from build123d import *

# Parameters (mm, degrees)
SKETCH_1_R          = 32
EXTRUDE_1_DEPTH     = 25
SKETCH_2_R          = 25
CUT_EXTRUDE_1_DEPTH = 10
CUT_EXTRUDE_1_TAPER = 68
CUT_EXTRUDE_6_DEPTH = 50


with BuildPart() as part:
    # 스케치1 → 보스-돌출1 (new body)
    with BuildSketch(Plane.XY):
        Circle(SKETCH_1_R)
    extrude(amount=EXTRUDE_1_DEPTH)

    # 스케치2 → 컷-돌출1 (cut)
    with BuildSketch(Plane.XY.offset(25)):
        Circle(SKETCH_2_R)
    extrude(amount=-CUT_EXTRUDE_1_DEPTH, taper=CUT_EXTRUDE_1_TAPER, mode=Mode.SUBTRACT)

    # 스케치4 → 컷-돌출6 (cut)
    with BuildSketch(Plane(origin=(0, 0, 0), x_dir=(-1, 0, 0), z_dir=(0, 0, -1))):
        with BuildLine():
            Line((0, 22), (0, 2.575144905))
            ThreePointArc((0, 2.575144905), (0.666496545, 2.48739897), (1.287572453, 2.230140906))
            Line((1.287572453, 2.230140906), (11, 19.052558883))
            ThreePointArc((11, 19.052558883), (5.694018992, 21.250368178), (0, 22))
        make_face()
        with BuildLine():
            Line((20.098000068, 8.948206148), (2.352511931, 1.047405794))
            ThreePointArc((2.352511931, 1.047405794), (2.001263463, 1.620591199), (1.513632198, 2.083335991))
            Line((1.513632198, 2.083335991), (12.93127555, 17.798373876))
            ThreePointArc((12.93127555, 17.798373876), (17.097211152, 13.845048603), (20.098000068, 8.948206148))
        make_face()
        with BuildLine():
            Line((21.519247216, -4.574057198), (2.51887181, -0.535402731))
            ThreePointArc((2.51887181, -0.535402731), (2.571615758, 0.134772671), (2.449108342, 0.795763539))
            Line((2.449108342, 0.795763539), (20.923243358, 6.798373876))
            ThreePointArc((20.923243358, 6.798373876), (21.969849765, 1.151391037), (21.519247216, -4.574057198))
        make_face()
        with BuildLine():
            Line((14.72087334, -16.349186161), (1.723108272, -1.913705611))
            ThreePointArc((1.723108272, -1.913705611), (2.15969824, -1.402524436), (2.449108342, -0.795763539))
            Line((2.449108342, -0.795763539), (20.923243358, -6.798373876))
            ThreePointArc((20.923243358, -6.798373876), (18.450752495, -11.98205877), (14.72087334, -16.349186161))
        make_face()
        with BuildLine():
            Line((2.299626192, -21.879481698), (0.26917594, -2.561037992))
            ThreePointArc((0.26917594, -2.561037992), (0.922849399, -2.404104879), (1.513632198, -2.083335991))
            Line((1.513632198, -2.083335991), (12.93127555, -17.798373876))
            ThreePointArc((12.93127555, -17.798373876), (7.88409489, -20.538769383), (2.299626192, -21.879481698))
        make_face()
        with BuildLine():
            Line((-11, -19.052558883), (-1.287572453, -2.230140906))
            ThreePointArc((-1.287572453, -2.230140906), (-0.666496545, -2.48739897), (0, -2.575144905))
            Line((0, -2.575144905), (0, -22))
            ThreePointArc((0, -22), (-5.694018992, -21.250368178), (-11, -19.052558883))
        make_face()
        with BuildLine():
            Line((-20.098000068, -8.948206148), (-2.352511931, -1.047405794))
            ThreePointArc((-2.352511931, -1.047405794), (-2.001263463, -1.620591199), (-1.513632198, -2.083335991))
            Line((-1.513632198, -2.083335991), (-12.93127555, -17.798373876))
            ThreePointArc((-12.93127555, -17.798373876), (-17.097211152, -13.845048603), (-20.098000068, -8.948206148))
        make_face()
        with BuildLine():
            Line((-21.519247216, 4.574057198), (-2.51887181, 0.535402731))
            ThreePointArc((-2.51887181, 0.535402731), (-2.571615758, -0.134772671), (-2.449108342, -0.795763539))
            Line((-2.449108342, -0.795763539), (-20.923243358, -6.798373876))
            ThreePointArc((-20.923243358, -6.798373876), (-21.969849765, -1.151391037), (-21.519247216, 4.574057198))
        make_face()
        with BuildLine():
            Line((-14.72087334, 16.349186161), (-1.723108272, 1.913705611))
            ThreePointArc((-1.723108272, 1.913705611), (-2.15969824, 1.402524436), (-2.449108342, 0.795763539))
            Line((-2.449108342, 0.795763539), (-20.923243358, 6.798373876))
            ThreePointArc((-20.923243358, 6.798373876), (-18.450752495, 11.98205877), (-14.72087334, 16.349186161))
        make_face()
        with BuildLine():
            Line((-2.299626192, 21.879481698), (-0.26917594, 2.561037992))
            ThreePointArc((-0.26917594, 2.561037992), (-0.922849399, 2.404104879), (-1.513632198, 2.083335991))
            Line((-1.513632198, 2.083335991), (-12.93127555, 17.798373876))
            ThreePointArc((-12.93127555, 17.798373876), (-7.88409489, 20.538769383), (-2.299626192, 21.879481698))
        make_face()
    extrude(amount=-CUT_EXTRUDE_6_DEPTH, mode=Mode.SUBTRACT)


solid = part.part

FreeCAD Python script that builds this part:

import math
import FreeCAD as App
import Part
import Sketcher

V = App.Vector
Q = App.Units.Quantity

doc = App.newDocument("Part")
body = doc.addObject("PartDesign::Body", "Body")

sketch1 = body.newObject("Sketcher::SketchObject", "Sketch")
sketch1.AttachmentSupport = (doc.getObject("XY_Plane"), [""])
sketch1.MapMode = "FlatFace"
sketch1.addGeometry(Part.Circle(V(0, 0, 0), V(0, 0, 1), 32), False)
sketch1.addConstraint(Sketcher.Constraint("Coincident", 0, 3, -1, 1))
sketch1.addConstraint(Sketcher.Constraint("Diameter", 0, Q("64 mm")))
pad1 = body.newObject("PartDesign::Pad", "Pad")
pad1.Profile = sketch1
pad1.Length = 25

sketch2 = body.newObject("Sketcher::SketchObject", "Sketch001")
sketch2.AttachmentSupport = (doc.getObject("XY_Plane"), [""])
sketch2.MapMode = "FlatFace"
sketch2.AttachmentOffset = App.Placement(V(0, 0, 25), App.Rotation())
sketch2.addGeometry(Part.Circle(V(0, 0, 0), V(0, 0, 1), 25), False)
sketch2.addConstraint(Sketcher.Constraint("Coincident", 0, 3, -1, 1))
sketch2.addConstraint(Sketcher.Constraint("Diameter", 0, Q("50 mm")))
pocket1 = body.newObject("PartDesign::Pocket", "Pocket")
pocket1.Profile = sketch2
pocket1.Length = 10
pocket1.TaperAngle = -68

sketch3 = body.newObject("Sketcher::SketchObject", "Sketch002")
sketch3.AttachmentSupport = (doc.getObject("XY_Plane"), [""])
sketch3.MapMode = "FlatFace"
sketch3.addGeometry(Part.LineSegment(V(0, 22, 0), V(0, 2.6, 0)), False)
sketch3.addGeometry(Part.ArcOfCircle(Part.Circle(V(0, 0, 0), V(0, 0, 1), 2.6), math.radians(90), math.radians(120)), False)
sketch3.addGeometry(Part.LineSegment(V(-1.3, 2.2, 0), V(-11, 19.1, 0)), False)
sketch3.addGeometry(Part.ArcOfCircle(Part.Circle(V(0, 0, 0), V(0, 0, 1), 22), math.radians(90), math.radians(120)), False)
sketch3.addGeometry(Part.LineSegment(V(-2.4, 1, 0), V(-20.1, 8.9, 0)), False)
sketch3.addGeometry(Part.ArcOfCircle(Part.Circle(V(0, 0, 0), V(0, 0, 1), 22), math.radians(126), math.radians(156)), False)
sketch3.addGeometry(Part.LineSegment(V(-12.9, 17.8, 0), V(-1.5, 2.1, 0)), False)
sketch3.addGeometry(Part.ArcOfCircle(Part.Circle(V(0, 0, 0), V(0, 0, 1), 2.6), math.radians(126), math.radians(156)), False)
sketch3.addGeometry(Part.LineSegment(V(-2.5, -0.5, 0), V(-21.5, -4.6, 0)), False)
sketch3.addGeometry(Part.ArcOfCircle(Part.Circle(V(0, 0, 0), V(0, 0, 1), 22), math.radians(162), math.radians(192)), False)
sketch3.addGeometry(Part.LineSegment(V(-20.9, 6.8, 0), V(-2.4, 0.8, 0)), False)
sketch3.addGeometry(Part.ArcOfCircle(Part.Circle(V(0, 0, 0), V(0, 0, 1), 2.6), math.radians(162), math.radians(192)), False)
sketch3.addGeometry(Part.LineSegment(V(-1.7, -1.9, 0), V(-14.7, -16.3, 0)), False)
sketch3.addGeometry(Part.ArcOfCircle(Part.Circle(V(0, 0, 0), V(0, 0, 1), 22), math.radians(-162), math.radians(-132)), False)
sketch3.addGeometry(Part.LineSegment(V(-20.9, -6.8, 0), V(-2.4, -0.8, 0)), False)
sketch3.addGeometry(Part.ArcOfCircle(Part.Circle(V(0, 0, 0), V(0, 0, 1), 2.6), math.radians(-162), math.radians(-132)), False)
sketch3.addGeometry(Part.LineSegment(V(-0.3, -2.6, 0), V(-2.3, -21.9, 0)), False)
sketch3.addGeometry(Part.ArcOfCircle(Part.Circle(V(0, 0, 0), V(0, 0, 1), 22), math.radians(-126), math.radians(-96)), False)
sketch3.addGeometry(Part.LineSegment(V(-12.9, -17.8, 0), V(-1.5, -2.1, 0)), False)
sketch3.addGeometry(Part.ArcOfCircle(Part.Circle(V(0, 0, 0), V(0, 0, 1), 2.6), math.radians(-126), math.radians(-96)), False)
sketch3.addGeometry(Part.LineSegment(V(1.3, -2.2, 0), V(11, -19.1, 0)), False)
sketch3.addGeometry(Part.ArcOfCircle(Part.Circle(V(0, 0, 0), V(0, 0, 1), 22), math.radians(-90), math.radians(-60)), False)
sketch3.addGeometry(Part.LineSegment(V(0, -22, 0), V(0, -2.6, 0)), False)
sketch3.addGeometry(Part.ArcOfCircle(Part.Circle(V(0, 0, 0), V(0, 0, 1), 2.6), math.radians(-90), math.radians(-60)), False)
sketch3.addGeometry(Part.LineSegment(V(2.4, -1, 0), V(20.1, -8.9, 0)), False)
sketch3.addGeometry(Part.ArcOfCircle(Part.Circle(V(0, 0, 0), V(0, 0, 1), 22), math.radians(-54), math.radians(-24)), False)
sketch3.addGeometry(Part.LineSegment(V(12.9, -17.8, 0), V(1.5, -2.1, 0)), False)
sketch3.addGeometry(Part.ArcOfCircle(Part.Circle(V(0, 0, 0), V(0, 0, 1), 2.6), math.radians(-54), math.radians(-24)), False)
sketch3.addGeometry(Part.LineSegment(V(2.5, 0.5, 0), V(21.5, 4.6, 0)), False)
sketch3.addGeometry(Part.ArcOfCircle(Part.Circle(V(0, 0, 0), V(0, 0, 1), 22), math.radians(-18), math.radians(12)), False)
sketch3.addGeometry(Part.LineSegment(V(20.9, -6.8, 0), V(2.4, -0.8, 0)), False)
sketch3.addGeometry(Part.ArcOfCircle(Part.Circle(V(0, 0, 0), V(0, 0, 1), 2.6), math.radians(-18), math.radians(12)), False)
sketch3.addGeometry(Part.LineSegment(V(1.7, 1.9, 0), V(14.7, 16.3, 0)), False)
sketch3.addGeometry(Part.ArcOfCircle(Part.Circle(V(0, 0, 0), V(0, 0, 1), 22), math.radians(18), math.radians(48)), False)
sketch3.addGeometry(Part.LineSegment(V(20.9, 6.8, 0), V(2.4, 0.8, 0)), False)
sketch3.addGeometry(Part.ArcOfCircle(Part.Circle(V(0, 0, 0), V(0, 0, 1), 2.6), math.radians(18), math.radians(48)), False)
sketch3.addGeometry(Part.LineSegment(V(0.3, 2.6, 0), V(2.3, 21.9, 0)), False)
sketch3.addGeometry(Part.ArcOfCircle(Part.Circle(V(0, 0, 0), V(0, 0, 1), 22), math.radians(54), math.radians(84)), False)
sketch3.addGeometry(Part.LineSegment(V(12.9, 17.8, 0), V(1.5, 2.1, 0)), False)
sketch3.addGeometry(Part.ArcOfCircle(Part.Circle(V(0, 0, 0), V(0, 0, 1), 2.6), math.radians(54), math.radians(84)), False)
sketch3.addConstraint(Sketcher.Constraint("Coincident", 0, 2, 1, 1))
sketch3.addConstraint(Sketcher.Constraint("Coincident", 1, 2, 2, 1))
sketch3.addConstraint(Sketcher.Constraint("Coincident", 2, 2, 3, 2))
sketch3.addConstraint(Sketcher.Constraint("Coincident", 3, 1, 0, 1))
sketch3.addConstraint(Sketcher.Constraint("Coincident", 4, 2, 5, 2))
sketch3.addConstraint(Sketcher.Constraint("Coincident", 5, 1, 6, 1))
sketch3.addConstraint(Sketcher.Constraint("Coincident", 6, 2, 7, 1))
sketch3.addConstraint(Sketcher.Constraint("Coincident", 7, 2, 4, 1))
sketch3.addConstraint(Sketcher.Constraint("Coincident", 8, 2, 9, 2))
sketch3.addConstraint(Sketcher.Constraint("Coincident", 9, 1, 10, 1))
sketch3.addConstraint(Sketcher.Constraint("Coincident", 10, 2, 11, 1))
sketch3.addConstraint(Sketcher.Constraint("Coincident", 11, 2, 8, 1))
sketch3.addConstraint(Sketcher.Constraint("Coincident", 12, 2, 13, 2))
sketch3.addConstraint(Sketcher.Constraint("Coincident", 13, 1, 14, 1))
sketch3.addConstraint(Sketcher.Constraint("Coincident", 14, 2, 15, 1))
sketch3.addConstraint(Sketcher.Constraint("Coincident", 15, 2, 12, 1))
sketch3.addConstraint(Sketcher.Constraint("Coincident", 16, 2, 17, 2))
sketch3.addConstraint(Sketcher.Constraint("Coincident", 17, 1, 18, 1))
sketch3.addConstraint(Sketcher.Constraint("Coincident", 18, 2, 19, 1))
sketch3.addConstraint(Sketcher.Constraint("Coincident", 19, 2, 16, 1))
sketch3.addConstraint(Sketcher.Constraint("Coincident", 20, 2, 21, 2))
sketch3.addConstraint(Sketcher.Constraint("Coincident", 21, 1, 22, 1))
sketch3.addConstraint(Sketcher.Constraint("Coincident", 22, 2, 23, 1))
sketch3.addConstraint(Sketcher.Constraint("Coincident", 23, 2, 20, 1))
sketch3.addConstraint(Sketcher.Constraint("Coincident", 24, 2, 25, 2))
sketch3.addConstraint(Sketcher.Constraint("Coincident", 25, 1, 26, 1))
sketch3.addConstraint(Sketcher.Constraint("Coincident", 26, 2, 27, 1))
sketch3.addConstraint(Sketcher.Constraint("Coincident", 27, 2, 24, 1))
sketch3.addConstraint(Sketcher.Constraint("Coincident", 28, 2, 29, 2))
sketch3.addConstraint(Sketcher.Constraint("Coincident", 29, 1, 30, 1))
sketch3.addConstraint(Sketcher.Constraint("Coincident", 30, 2, 31, 1))
sketch3.addConstraint(Sketcher.Constraint("Coincident", 31, 2, 28, 1))
sketch3.addConstraint(Sketcher.Constraint("Coincident", 32, 2, 33, 2))
sketch3.addConstraint(Sketcher.Constraint("Coincident", 33, 1, 34, 1))
sketch3.addConstraint(Sketcher.Constraint("Coincident", 34, 2, 35, 1))
sketch3.addConstraint(Sketcher.Constraint("Coincident", 35, 2, 32, 1))
sketch3.addConstraint(Sketcher.Constraint("Coincident", 36, 2, 37, 2))
sketch3.addConstraint(Sketcher.Constraint("Coincident", 37, 1, 38, 1))
sketch3.addConstraint(Sketcher.Constraint("Coincident", 38, 2, 39, 1))
sketch3.addConstraint(Sketcher.Constraint("Coincident", 39, 2, 36, 1))
sketch3.addConstraint(Sketcher.Constraint("Vertical", 0))
sketch3.addConstraint(Sketcher.Constraint("Vertical", 22))
sketch3.addConstraint(Sketcher.Constraint("Coincident", 1, 3, -1, 1))
sketch3.addConstraint(Sketcher.Constraint("Coincident", 3, 3, -1, 1))
sketch3.addConstraint(Sketcher.Constraint("Coincident", 5, 3, -1, 1))
sketch3.addConstraint(Sketcher.Constraint("Coincident", 7, 3, -1, 1))
sketch3.addConstraint(Sketcher.Constraint("Coincident", 9, 3, -1, 1))
sketch3.addConstraint(Sketcher.Constraint("Coincident", 11, 3, -1, 1))
sketch3.addConstraint(Sketcher.Constraint("Coincident", 13, 3, -1, 1))
sketch3.addConstraint(Sketcher.Constraint("Coincident", 15, 3, -1, 1))
sketch3.addConstraint(Sketcher.Constraint("Coincident", 17, 3, -1, 1))
sketch3.addConstraint(Sketcher.Constraint("Coincident", 19, 3, -1, 1))
sketch3.addConstraint(Sketcher.Constraint("Coincident", 21, 3, -1, 1))
sketch3.addConstraint(Sketcher.Constraint("Coincident", 23, 3, -1, 1))
sketch3.addConstraint(Sketcher.Constraint("Coincident", 25, 3, -1, 1))
sketch3.addConstraint(Sketcher.Constraint("Coincident", 27, 3, -1, 1))
sketch3.addConstraint(Sketcher.Constraint("Coincident", 29, 3, -1, 1))
sketch3.addConstraint(Sketcher.Constraint("Coincident", 31, 3, -1, 1))
sketch3.addConstraint(Sketcher.Constraint("Coincident", 33, 3, -1, 1))
sketch3.addConstraint(Sketcher.Constraint("Coincident", 35, 3, -1, 1))
sketch3.addConstraint(Sketcher.Constraint("Coincident", 37, 3, -1, 1))
sketch3.addConstraint(Sketcher.Constraint("Coincident", 39, 3, -1, 1))
sketch3.addConstraint(Sketcher.Constraint("Equal", 3, 5))
sketch3.addConstraint(Sketcher.Constraint("Equal", 1, 7))
sketch3.addConstraint(Sketcher.Constraint("Equal", 5, 9))
sketch3.addConstraint(Sketcher.Constraint("Equal", 7, 11))
sketch3.addConstraint(Sketcher.Constraint("Equal", 9, 13))
sketch3.addConstraint(Sketcher.Constraint("Equal", 11, 15))
sketch3.addConstraint(Sketcher.Constraint("Equal", 13, 17))
sketch3.addConstraint(Sketcher.Constraint("Equal", 15, 19))
sketch3.addConstraint(Sketcher.Constraint("Equal", 17, 21))
sketch3.addConstraint(Sketcher.Constraint("Equal", 19, 23))
sketch3.addConstraint(Sketcher.Constraint("Equal", 21, 25))
sketch3.addConstraint(Sketcher.Constraint("Equal", 23, 27))
sketch3.addConstraint(Sketcher.Constraint("Equal", 25, 29))
sketch3.addConstraint(Sketcher.Constraint("Equal", 27, 31))
sketch3.addConstraint(Sketcher.Constraint("Equal", 29, 33))
sketch3.addConstraint(Sketcher.Constraint("Equal", 31, 35))
sketch3.addConstraint(Sketcher.Constraint("Equal", 33, 37))
sketch3.addConstraint(Sketcher.Constraint("Equal", 35, 39))
sketch3.addConstraint(Sketcher.Constraint("PointOnObject", 0, 2, -2))
sketch3.addConstraint(Sketcher.Constraint("PointOnObject", 21, 1, -2))
sketch3.addConstraint(Sketcher.Constraint("Parallel", 2, 20))
sketch3.addConstraint(Sketcher.Constraint("Parallel", 4, 24))
sketch3.addConstraint(Sketcher.Constraint("Parallel", 6, 26))
sketch3.addConstraint(Sketcher.Constraint("Parallel", 8, 28))
sketch3.addConstraint(Sketcher.Constraint("Parallel", 10, 30))
sketch3.addConstraint(Sketcher.Constraint("Parallel", 12, 32))
sketch3.addConstraint(Sketcher.Constraint("Parallel", 14, 34))
sketch3.addConstraint(Sketcher.Constraint("Parallel", 16, 36))
sketch3.addConstraint(Sketcher.Constraint("Parallel", 18, 38))
sketch3.addConstraint(Sketcher.Constraint("Horizontal", 17, 1, 25, 1))
sketch3.addConstraint(Sketcher.Constraint("Horizontal", 18, 2, 26, 2))
sketch3.addConstraint(Sketcher.Constraint("Horizontal", 13, 1, 29, 1))
sketch3.addConstraint(Sketcher.Constraint("Horizontal", 14, 2, 30, 2))
sketch3.addConstraint(Sketcher.Constraint("Horizontal", 9, 1, 33, 1))
sketch3.addConstraint(Sketcher.Constraint("Horizontal", 5, 1, 37, 1))
sketch3.addConstraint(Sketcher.Constraint("Vertical", 9, 1, 13, 1))
sketch3.addConstraint(Sketcher.Constraint("Vertical", 5, 1, 17, 1))
sketch3.addConstraint(Sketcher.Constraint("Radius", 3, Q("22 mm")))
sketch3.addConstraint(Sketcher.Constraint("Angle", 2, Q("120 deg")))
sketch3.addConstraint(Sketcher.Constraint("Angle", 4, Q("156 deg")))
sketch3.addConstraint(Sketcher.Constraint("Angle", 6, Q("-54 deg")))
sketch3.addConstraint(Sketcher.Constraint("Angle", 8, Q("-168 deg")))
sketch3.addConstraint(Sketcher.Constraint("Angle", 10, Q("-18 deg")))
sketch3.addConstraint(Sketcher.Constraint("Angle", 12, Q("-132 deg")))
sketch3.addConstraint(Sketcher.Constraint("Angle", 16, Q("-96 deg")))
sketch3.addConstraint(Sketcher.Constraint("DistanceX", 2, 2, -1, 1, Q("11 mm")))
sketch3.addConstraint(Sketcher.Constraint("DistanceX", -1, 1, 20, 2, Q("11 mm")))
sketch3.addConstraint(Sketcher.Constraint("DistanceY", 9, 1, 5, 1, Q("11 mm")))
sketch3.addConstraint(Sketcher.Constraint("DistanceX", 4, 2, -1, 1, Q("20.098 mm")))
sketch3.addConstraint(Sketcher.Constraint("DistanceX", -1, 1, 24, 2, Q("20.098 mm")))
sketch3.addConstraint(Sketcher.Constraint("Radius", 1, Q("2.575145 mm")))
sketch3.addConstraint(Sketcher.Constraint("DistanceX", 12, 2, 11, 2, Q("12.202002 mm")))
sketch3.addConstraint(Sketcher.Constraint("DistanceX", 14, 2, 15, 2, Q("0.726 mm")))
sketch3.addConstraint(Sketcher.Constraint("DistanceX", 31, 2, 32, 2, Q("12.202002 mm")))
sketch3.addConstraint(Sketcher.Constraint("DistanceX", 35, 2, 34, 2, Q("0.726 mm")))
sketch3.addConstraint(Sketcher.Constraint("DistanceY", 8, 2, 1, 2, Q("6.804198 mm")))
sketch3.addConstraint(Sketcher.Constraint("DistanceX", 16, 2, 25, 1, Q("15.230902 mm")))
sketch3.addConstraint(Sketcher.Constraint("DistanceX", 5, 1, 36, 2, Q("15.230902 mm")))
pocket2 = body.newObject("PartDesign::Pocket", "Pocket001")
pocket2.Profile = sketch3
pocket2.Length = 50
pocket2.Reversed = True

doc.recompute()
